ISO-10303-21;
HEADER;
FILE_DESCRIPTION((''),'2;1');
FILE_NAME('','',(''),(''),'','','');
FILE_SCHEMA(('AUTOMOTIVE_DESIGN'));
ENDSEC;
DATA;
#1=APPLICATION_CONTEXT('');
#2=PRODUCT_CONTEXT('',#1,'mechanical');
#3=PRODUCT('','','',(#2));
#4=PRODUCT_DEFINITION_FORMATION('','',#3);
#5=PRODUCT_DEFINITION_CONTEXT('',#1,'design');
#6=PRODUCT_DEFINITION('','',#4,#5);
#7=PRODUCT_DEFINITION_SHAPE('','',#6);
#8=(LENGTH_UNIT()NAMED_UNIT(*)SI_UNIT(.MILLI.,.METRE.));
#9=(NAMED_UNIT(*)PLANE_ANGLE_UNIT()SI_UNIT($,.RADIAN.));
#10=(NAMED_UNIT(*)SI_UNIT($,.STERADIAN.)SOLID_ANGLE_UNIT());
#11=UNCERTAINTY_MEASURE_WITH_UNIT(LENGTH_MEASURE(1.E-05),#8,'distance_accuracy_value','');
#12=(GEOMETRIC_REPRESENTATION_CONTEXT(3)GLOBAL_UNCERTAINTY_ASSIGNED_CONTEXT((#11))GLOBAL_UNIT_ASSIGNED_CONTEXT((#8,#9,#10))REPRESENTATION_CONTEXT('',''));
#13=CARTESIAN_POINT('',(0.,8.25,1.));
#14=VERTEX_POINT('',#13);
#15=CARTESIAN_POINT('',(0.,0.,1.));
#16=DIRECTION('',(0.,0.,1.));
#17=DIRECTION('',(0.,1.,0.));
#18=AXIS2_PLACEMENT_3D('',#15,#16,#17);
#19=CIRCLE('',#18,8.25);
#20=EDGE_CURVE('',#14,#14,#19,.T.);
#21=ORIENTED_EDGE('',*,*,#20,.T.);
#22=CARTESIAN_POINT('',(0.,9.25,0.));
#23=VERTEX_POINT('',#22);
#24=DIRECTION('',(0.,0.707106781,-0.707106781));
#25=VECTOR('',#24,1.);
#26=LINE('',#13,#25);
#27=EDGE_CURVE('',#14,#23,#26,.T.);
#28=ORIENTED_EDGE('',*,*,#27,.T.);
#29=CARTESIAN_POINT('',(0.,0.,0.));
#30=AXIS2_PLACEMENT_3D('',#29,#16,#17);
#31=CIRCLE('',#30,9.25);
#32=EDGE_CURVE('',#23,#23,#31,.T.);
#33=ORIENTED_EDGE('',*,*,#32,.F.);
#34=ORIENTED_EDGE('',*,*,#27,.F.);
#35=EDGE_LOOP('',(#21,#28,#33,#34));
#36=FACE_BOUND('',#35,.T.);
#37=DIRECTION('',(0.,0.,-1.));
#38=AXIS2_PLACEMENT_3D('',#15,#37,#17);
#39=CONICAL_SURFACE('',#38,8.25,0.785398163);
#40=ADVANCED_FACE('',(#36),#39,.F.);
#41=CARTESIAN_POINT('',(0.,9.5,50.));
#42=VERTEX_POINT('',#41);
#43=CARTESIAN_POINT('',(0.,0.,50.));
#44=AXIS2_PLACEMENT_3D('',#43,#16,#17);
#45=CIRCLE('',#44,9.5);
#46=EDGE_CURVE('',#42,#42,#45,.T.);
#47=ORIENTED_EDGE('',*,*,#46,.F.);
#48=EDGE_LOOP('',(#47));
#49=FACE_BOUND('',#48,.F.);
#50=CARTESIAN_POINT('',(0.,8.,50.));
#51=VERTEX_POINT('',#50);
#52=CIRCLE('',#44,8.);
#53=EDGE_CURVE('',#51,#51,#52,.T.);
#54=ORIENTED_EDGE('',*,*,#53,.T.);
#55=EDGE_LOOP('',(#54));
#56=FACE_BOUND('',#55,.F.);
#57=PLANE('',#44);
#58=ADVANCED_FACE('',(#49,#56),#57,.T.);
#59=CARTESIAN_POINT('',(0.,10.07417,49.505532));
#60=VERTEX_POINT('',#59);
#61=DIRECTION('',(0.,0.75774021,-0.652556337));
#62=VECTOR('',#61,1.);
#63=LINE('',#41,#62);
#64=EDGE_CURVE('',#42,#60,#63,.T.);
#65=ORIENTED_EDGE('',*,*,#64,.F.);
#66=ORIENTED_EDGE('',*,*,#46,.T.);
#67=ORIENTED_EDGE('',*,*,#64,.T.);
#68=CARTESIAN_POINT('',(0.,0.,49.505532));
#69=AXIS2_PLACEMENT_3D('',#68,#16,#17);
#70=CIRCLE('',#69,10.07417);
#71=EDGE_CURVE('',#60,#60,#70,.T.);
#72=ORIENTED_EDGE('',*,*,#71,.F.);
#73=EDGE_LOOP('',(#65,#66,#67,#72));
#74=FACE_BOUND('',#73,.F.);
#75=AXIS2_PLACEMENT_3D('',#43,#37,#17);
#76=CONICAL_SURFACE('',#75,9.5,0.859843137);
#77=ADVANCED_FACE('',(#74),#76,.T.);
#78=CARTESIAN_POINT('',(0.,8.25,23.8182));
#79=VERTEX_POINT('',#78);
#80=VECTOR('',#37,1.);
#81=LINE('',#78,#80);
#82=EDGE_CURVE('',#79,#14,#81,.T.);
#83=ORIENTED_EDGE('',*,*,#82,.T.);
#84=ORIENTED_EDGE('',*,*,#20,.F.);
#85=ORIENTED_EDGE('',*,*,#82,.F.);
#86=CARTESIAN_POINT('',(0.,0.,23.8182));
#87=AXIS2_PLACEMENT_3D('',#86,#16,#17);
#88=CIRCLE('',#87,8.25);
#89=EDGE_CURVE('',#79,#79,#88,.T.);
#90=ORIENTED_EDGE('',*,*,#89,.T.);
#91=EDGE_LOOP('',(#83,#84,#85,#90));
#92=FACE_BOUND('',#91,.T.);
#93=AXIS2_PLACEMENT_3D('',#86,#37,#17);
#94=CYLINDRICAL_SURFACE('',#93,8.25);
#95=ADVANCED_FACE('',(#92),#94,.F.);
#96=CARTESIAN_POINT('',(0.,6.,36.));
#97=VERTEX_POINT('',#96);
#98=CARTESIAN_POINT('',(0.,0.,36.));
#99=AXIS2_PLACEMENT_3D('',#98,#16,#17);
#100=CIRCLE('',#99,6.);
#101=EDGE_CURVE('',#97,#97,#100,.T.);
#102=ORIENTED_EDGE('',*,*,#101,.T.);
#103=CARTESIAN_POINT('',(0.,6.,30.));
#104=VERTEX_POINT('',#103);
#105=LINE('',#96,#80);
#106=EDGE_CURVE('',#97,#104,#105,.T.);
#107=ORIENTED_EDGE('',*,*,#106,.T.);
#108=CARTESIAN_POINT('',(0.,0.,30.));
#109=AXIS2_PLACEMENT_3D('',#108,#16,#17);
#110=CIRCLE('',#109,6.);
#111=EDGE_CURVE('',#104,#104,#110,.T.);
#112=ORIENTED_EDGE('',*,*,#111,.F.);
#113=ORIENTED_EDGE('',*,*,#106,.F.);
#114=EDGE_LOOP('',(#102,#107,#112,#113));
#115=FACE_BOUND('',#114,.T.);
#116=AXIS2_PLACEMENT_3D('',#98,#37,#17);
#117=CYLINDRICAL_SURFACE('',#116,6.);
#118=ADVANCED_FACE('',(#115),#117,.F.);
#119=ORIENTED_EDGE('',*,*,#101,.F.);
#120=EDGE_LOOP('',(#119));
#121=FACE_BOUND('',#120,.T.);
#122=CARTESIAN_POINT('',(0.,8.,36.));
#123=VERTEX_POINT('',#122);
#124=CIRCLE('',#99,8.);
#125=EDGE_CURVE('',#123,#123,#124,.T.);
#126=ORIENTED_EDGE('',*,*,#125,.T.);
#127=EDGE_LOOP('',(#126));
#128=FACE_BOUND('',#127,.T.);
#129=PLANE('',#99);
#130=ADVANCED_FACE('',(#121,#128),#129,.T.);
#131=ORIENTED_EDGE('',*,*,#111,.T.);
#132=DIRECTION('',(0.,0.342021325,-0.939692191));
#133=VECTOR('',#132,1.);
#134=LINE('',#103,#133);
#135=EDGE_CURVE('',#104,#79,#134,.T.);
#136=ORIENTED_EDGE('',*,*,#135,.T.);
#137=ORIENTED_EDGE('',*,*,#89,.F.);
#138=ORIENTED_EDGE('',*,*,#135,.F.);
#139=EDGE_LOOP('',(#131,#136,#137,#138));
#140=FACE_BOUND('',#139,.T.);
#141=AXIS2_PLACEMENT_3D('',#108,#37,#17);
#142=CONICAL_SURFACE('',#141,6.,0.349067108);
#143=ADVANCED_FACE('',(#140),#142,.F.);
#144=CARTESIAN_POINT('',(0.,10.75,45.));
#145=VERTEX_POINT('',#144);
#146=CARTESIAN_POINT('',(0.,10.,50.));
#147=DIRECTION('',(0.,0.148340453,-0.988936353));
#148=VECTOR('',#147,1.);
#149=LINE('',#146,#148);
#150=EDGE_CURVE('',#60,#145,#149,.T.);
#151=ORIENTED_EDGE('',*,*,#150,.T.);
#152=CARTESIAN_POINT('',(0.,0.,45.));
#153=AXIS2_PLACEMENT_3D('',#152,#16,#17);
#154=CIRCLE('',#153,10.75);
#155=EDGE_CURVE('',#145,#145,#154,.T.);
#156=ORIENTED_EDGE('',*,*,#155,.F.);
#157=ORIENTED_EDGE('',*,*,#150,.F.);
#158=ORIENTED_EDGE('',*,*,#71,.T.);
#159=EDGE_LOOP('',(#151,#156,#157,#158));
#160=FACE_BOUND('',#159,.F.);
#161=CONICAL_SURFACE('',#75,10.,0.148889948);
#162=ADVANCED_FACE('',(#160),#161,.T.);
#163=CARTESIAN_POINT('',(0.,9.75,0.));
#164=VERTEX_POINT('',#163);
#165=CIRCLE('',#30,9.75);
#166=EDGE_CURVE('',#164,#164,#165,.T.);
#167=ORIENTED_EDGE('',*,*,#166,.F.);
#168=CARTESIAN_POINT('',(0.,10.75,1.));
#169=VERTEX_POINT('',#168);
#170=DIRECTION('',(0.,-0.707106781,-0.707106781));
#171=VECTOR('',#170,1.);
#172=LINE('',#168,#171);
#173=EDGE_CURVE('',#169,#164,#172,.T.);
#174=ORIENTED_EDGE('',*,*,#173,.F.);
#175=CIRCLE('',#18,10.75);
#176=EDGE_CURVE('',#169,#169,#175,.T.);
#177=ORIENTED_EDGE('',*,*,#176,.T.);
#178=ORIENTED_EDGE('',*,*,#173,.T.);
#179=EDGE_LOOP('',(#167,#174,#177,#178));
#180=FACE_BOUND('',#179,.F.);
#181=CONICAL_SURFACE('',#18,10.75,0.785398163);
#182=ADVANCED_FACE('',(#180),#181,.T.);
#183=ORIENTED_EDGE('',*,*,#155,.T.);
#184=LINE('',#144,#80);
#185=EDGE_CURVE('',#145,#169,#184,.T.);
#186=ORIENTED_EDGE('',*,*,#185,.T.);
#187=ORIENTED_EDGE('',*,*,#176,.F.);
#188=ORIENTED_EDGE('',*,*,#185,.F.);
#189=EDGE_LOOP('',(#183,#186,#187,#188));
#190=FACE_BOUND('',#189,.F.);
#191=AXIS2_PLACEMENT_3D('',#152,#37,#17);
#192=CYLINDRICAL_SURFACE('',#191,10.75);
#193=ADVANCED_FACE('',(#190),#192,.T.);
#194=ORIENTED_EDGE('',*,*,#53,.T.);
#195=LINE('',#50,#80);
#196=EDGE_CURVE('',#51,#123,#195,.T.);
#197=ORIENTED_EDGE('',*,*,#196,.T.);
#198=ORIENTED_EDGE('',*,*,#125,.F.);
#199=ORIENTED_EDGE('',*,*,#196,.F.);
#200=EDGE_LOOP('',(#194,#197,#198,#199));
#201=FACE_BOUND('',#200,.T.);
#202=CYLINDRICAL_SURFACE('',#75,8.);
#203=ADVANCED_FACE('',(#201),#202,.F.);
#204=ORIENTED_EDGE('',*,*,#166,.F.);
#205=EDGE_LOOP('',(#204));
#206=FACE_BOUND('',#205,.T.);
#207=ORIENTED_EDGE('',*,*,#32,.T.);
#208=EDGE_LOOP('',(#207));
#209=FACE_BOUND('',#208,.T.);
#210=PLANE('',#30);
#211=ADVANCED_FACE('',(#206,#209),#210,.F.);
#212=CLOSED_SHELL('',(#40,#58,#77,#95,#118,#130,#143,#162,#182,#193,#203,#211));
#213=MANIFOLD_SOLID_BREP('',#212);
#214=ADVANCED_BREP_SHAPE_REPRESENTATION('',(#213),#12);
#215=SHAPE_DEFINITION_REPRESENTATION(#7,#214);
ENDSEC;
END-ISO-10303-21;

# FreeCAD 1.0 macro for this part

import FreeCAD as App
import Part
import Sketcher
from FreeCAD import Vector
Q = App.Units.Quantity


def edges_at(feature, points):
    """Names of the edges that pass closest to the given points."""
    edges = feature.Shape.Edges
    near = lambda p: min(range(len(edges)), key=lambda i: edges[i].distToShape(Part.Vertex(*p))[0])
    return sorted({f"Edge{near(p) + 1}" for p in points})

doc = App.newDocument("Part")
body = doc.addObject("PartDesign::Body", "Body")

sketch1 = body.newObject("Sketcher::SketchObject", "Sketch")
sketch1.AttachmentSupport = (doc.getObject("YZ_Plane"), [""])
sketch1.MapMode = "FlatFace"
sketch1.addGeometry([
    Part.LineSegment(Vector(10, 50, 0), Vector(8, 50, 0)),
    Part.LineSegment(Vector(8, 50, 0), Vector(8, 36, 0)),
    Part.LineSegment(Vector(8, 36, 0), Vector(6, 36, 0)),
    Part.LineSegment(Vector(6, 36, 0), Vector(6, 30, 0)),
    Part.LineSegment(Vector(6, 30, 0), Vector(8.2, 23.8, 0)),
    Part.LineSegment(Vector(8.2, 23.8, 0), Vector(8.2, 1, 0)),
    Part.LineSegment(Vector(8.2, 1, 0), Vector(9.2, 0, 0)),
    Part.LineSegment(Vector(9.2, 0, 0), Vector(9.8, 0, 0)),
    Part.LineSegment(Vector(9.8, 0, 0), Vector(10.8, 1, 0)),
    Part.LineSegment(Vector(10.8, 1, 0), Vector(10.8, 45, 0)),
    Part.LineSegment(Vector(10.8, 45, 0), Vector(10, 50, 0)),
], False)
sketch1.addConstraint([
    Sketcher.Constraint("Coincident", 0, 2, 1, 1),
    Sketcher.Constraint("Coincident", 1, 2, 2, 1),
    Sketcher.Constraint("Coincident", 2, 2, 3, 1),
    Sketcher.Constraint("Coincident", 3, 2, 4, 1),
    Sketcher.Constraint("Coincident", 4, 2, 5, 1),
    Sketcher.Constraint("Coincident", 5, 2, 6, 1),
    Sketcher.Constraint("Coincident", 6, 2, 7, 1),
    Sketcher.Constraint("Coincident", 7, 2, 8, 1),
    Sketcher.Constraint("Coincident", 8, 2, 9, 1),
    Sketcher.Constraint("Coincident", 9, 2, 10, 1),
    Sketcher.Constraint("Coincident", 10, 2, 0, 1),
    Sketcher.Constraint("Horizontal", 0),
    Sketcher.Constraint("Vertical", 1),
    Sketcher.Constraint("Horizontal", 2),
    Sketcher.Constraint("Vertical", 3),
    Sketcher.Constraint("Vertical", 5),
    Sketcher.Constraint("Horizontal", 7),
    Sketcher.Constraint("Vertical", 9),
    Sketcher.Constraint("PointOnObject", 6, 2, -1),
    Sketcher.Constraint("Perpendicular", 6, 8),
    Sketcher.Constraint("Horizontal", 5, 2, 8, 2),
    Sketcher.Constraint("Equal", 0, 2),
    Sketcher.Constraint("Equal", 6, 8),
    Sketcher.Constraint("DistanceX", 0, 2, 0, 1, Q("2 mm")),
    Sketcher.Constraint("DistanceY", 1, 2, 1, 1, Q("14 mm")),
    Sketcher.Constraint("DistanceY", 3, 2, 3, 1, Q("6 mm")),
    Sketcher.Constraint("DistanceX", -1, 1, 2, 2, Q("6 mm")),
    Sketcher.Constraint("DistanceY", -1, 1, 3, 2, Q("30 mm")),
    Sketcher.Constraint("DistanceY", -1, 1, 5, 2, Q("1 mm")),
    Sketcher.Constraint("DistanceY", 9, 2, 0, 2, Q("5 mm")),
    Sketcher.Constraint("DistanceX", 5, 2, 8, 2, Q("2.5 mm")),
    Sketcher.Constraint("Angle", 4, Q("-70 deg")),
    Sketcher.Constraint("DistanceX", 3, 2, 8, 2, Q("4.75 mm")),
])
revolution = body.newObject("PartDesign::Revolution", "Revolution")
revolution.Profile = sketch1
revolution.ReferenceAxis = (sketch1, ["V_Axis"])
revolution.Angle = 360
doc.recompute()

chamfer = body.newObject("PartDesign::Chamfer", "Chamfer")
chamfer.Base = (revolution, edges_at(revolution, [(0, -10, 50)]))
chamfer.Size = 0.5

doc.recompute()
